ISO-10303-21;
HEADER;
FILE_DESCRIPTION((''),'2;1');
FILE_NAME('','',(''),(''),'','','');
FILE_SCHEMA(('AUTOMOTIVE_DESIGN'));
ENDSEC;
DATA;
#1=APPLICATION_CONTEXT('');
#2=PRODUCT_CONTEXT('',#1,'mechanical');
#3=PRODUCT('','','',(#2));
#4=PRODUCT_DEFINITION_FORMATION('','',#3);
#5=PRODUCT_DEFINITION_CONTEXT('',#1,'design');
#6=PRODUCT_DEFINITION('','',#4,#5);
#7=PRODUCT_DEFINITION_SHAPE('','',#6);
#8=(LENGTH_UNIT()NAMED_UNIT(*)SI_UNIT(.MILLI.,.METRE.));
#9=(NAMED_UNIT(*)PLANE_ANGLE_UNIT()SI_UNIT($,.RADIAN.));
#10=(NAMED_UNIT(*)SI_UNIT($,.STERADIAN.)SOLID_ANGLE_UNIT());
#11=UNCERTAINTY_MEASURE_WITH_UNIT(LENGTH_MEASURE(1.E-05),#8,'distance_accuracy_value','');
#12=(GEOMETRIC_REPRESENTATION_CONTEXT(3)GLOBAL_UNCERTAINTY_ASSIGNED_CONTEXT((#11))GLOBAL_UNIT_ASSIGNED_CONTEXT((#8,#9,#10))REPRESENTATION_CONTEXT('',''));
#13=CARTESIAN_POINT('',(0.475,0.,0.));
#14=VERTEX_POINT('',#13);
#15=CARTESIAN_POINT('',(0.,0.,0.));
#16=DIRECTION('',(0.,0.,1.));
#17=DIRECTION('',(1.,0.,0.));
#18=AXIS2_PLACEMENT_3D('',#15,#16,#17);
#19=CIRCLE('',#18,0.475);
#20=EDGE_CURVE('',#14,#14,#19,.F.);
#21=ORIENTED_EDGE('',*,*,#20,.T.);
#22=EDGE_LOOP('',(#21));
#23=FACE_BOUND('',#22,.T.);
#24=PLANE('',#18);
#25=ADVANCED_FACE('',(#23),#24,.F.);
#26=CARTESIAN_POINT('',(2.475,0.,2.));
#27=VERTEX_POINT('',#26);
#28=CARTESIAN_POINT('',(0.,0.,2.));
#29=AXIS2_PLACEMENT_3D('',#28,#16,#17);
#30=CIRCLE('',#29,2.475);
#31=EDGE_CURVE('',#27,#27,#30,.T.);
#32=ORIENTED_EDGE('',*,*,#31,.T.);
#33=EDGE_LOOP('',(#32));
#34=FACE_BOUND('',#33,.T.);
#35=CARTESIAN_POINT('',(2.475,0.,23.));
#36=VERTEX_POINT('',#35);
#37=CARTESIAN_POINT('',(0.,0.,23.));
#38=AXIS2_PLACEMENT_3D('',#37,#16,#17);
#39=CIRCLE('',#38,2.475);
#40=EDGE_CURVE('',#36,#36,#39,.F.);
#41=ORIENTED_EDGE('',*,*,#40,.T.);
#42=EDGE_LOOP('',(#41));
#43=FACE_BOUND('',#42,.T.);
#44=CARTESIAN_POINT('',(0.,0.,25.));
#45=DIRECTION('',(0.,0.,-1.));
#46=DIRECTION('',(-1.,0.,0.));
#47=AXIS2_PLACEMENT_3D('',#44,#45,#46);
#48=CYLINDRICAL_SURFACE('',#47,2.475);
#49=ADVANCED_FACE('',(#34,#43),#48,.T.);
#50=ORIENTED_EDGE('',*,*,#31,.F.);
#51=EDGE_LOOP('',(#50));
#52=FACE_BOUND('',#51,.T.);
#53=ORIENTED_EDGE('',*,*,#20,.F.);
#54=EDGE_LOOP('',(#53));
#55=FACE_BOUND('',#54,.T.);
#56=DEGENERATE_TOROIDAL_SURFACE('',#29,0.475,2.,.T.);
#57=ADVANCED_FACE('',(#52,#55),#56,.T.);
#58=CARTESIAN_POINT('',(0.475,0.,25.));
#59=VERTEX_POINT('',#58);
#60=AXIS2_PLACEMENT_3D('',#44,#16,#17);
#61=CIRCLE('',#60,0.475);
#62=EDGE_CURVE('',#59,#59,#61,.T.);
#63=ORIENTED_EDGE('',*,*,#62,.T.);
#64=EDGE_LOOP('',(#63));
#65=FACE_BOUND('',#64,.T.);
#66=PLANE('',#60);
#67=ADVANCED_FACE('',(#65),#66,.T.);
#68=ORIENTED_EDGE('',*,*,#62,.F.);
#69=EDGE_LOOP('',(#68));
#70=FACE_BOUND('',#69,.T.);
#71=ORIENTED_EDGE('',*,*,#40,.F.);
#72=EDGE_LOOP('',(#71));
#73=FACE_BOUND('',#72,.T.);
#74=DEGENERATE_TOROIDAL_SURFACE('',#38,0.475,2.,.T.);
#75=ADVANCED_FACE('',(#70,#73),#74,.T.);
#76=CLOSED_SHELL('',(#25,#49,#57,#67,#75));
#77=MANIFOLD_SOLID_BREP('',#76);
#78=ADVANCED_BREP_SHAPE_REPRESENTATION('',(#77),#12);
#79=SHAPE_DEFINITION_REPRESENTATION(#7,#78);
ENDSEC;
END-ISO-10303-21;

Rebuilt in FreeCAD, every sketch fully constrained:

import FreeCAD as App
import Part
import Sketcher

V = App.Vector


def edges_at(feature, points):
    """Names of the edges that pass closest to the given points."""
    edges = feature.Shape.Edges
    near = lambda p: min(range(len(edges)), key=lambda i: edges[i].distToShape(Part.Vertex(*p))[0])
    return sorted({f"Edge{near(p) + 1}" for p in points})

doc = App.newDocument("Part")
params = doc.addObject("Spreadsheet::Sheet", "Params")
for row, (alias, value) in enumerate([
    ("sketch1_diameter", "4.95 mm"),
    ("pad1_length", "25 mm"),
    ("fillet_radius", "2 mm"),
], start=1):
    params.set(f"A{row}", alias)
    params.set(f"B{row}", "=" + value)
    params.setAlias(f"B{row}", alias)

body = doc.addObject("PartDesign::Body", "Body")

sketch1 = doc.addObject("Sketcher::SketchObject", "Sketch")
body.addObject(sketch1)
sketch1.AttachmentSupport = (doc.XY_Plane, [""])
sketch1.MapMode = "FlatFace"
sketch1.addGeometry(Part.Circle(V(0, 0, 0), V(0, 0, 1), 2.5), False)
sketch1.addConstraint([
    Sketcher.Constraint("Coincident", 0, 3, -1, 1),
    Sketcher.Constraint("Diameter", 0, 4.95),
])
sketch1.setExpression("Constraints[1]", "Params.sketch1_diameter")
pad1 = doc.addObject("PartDesign::Pad", "Pad")
body.addObject(pad1)
pad1.Profile = sketch1
pad1.setExpression("Length", "Params.pad1_length")
doc.recompute()

fillet = doc.addObject("PartDesign::Fillet", "Fillet")
body.addObject(fillet)
fillet.Base = (pad1, edges_at(pad1, [(-2.475, 0, 0), (-2.475, 0, 25)]))
fillet.setExpression("Radius", "Params.fillet_radius")

doc.recompute()
